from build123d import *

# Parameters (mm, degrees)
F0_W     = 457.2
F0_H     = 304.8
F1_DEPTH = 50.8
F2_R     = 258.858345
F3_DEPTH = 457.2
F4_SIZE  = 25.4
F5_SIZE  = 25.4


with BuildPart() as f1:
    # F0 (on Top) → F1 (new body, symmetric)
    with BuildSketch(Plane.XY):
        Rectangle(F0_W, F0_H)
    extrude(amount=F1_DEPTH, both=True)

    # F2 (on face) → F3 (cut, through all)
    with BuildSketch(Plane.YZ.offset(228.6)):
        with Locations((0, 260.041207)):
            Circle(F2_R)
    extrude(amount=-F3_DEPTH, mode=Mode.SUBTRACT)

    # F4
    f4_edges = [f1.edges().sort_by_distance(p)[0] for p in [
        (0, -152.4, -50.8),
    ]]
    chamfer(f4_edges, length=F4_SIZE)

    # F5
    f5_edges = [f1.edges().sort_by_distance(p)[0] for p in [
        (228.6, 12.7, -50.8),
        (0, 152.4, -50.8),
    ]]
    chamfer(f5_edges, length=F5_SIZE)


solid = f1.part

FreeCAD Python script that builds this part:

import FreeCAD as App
import Part
import Sketcher
from FreeCAD import Vector
Q = App.Units.Quantity


def edges_at(feature, points):
    """Names of the edges that pass closest to the given points."""
    edges = feature.Shape.Edges
    near = lambda p: min(range(len(edges)), key=lambda i: edges[i].distToShape(Part.Vertex(*p))[0])
    return sorted({f"Edge{near(p) + 1}" for p in points})


def add_polygon(sketch, points):
    """Adds a closed chain of lines whose ends are joined by coincident constraints."""
    first, n = sketch.GeometryCount, len(points)
    for a, b in zip(points, points[1:] + points[:1]):
        sketch.addGeometry(Part.LineSegment(App.Vector(*a, 0), App.Vector(*b, 0)), False)
    for i in range(n):
        sketch.addConstraint(Sketcher.Constraint("Coincident", first + i, 2, first + (i + 1) % n, 1))

doc = App.newDocument("Part")
body = doc.addObject("PartDesign::Body", "Body")

# Sketch on XY plane
sketch1 = body.newObject("Sketcher::SketchObject", "Sketch")
sketch1.AttachmentSupport = (doc.getObject("XY_Plane"), [""])
sketch1.MapMode = "FlatFace"
add_polygon(sketch1, [(-229, 152), (-229, -152), (229, -152), (229, 152)])  # lines 0-3
sketch1.addConstraint([
    Sketcher.Constraint("Vertical", 0),
    Sketcher.Constraint("Horizontal", 1),
    Sketcher.Constraint("Vertical", 2),
    Sketcher.Constraint("Horizontal", 3),
    Sketcher.Constraint("Symmetric", 0, 2, 2, 2, -1, 1),
    Sketcher.Constraint("DistanceX", 1, 1, 1, 2, Q("18 in")),
    Sketcher.Constraint("DistanceY", 0, 2, 0, 1, Q("12 in")),
])
pad1 = body.newObject("PartDesign::Pad", "Pad")
pad1.Profile = sketch1
pad1.Length = Q("4 in")
pad1.Midplane = True

# Sketch on YZ plane
sketch2 = body.newObject("Sketcher::SketchObject", "Sketch001")
sketch2.AttachmentSupport = (doc.getObject("YZ_Plane"), [""])
sketch2.MapMode = "FlatFace"
sketch2.AttachmentOffset = App.Placement(Vector(0, 0, 9 * 25.4), App.Rotation())
sketch2.addGeometry(Part.Circle(Vector(0, 260, 0), Vector(0, 0, 1), 259), False)
sketch2.addConstraint([
    Sketcher.Constraint("PointOnObject", 0, 3, -2),
    Sketcher.Constraint("Diameter", 0, 517.71669),
    Sketcher.Constraint("DistanceY", -1, 1, 0, 3, 260.041207),
])
pocket1 = body.newObject("PartDesign::Pocket", "Pocket")
pocket1.Profile = sketch2
pocket1.Type = "ThroughAll"
doc.recompute()

chamfer = body.newObject("PartDesign::Chamfer", "Chamfer")
chamfer.Base = (pocket1, edges_at(pocket1, [(0, -152.4, -50.8)]))
chamfer.Size = Q("1 in")
doc.recompute()

chamfer2 = body.newObject("PartDesign::Chamfer", "Chamfer001")
chamfer2.Base = (chamfer, edges_at(chamfer, [(228.6, 12.7, -50.8), (0, 152.4, -50.8)]))
chamfer2.Size = Q("1 in")

doc.recompute()
